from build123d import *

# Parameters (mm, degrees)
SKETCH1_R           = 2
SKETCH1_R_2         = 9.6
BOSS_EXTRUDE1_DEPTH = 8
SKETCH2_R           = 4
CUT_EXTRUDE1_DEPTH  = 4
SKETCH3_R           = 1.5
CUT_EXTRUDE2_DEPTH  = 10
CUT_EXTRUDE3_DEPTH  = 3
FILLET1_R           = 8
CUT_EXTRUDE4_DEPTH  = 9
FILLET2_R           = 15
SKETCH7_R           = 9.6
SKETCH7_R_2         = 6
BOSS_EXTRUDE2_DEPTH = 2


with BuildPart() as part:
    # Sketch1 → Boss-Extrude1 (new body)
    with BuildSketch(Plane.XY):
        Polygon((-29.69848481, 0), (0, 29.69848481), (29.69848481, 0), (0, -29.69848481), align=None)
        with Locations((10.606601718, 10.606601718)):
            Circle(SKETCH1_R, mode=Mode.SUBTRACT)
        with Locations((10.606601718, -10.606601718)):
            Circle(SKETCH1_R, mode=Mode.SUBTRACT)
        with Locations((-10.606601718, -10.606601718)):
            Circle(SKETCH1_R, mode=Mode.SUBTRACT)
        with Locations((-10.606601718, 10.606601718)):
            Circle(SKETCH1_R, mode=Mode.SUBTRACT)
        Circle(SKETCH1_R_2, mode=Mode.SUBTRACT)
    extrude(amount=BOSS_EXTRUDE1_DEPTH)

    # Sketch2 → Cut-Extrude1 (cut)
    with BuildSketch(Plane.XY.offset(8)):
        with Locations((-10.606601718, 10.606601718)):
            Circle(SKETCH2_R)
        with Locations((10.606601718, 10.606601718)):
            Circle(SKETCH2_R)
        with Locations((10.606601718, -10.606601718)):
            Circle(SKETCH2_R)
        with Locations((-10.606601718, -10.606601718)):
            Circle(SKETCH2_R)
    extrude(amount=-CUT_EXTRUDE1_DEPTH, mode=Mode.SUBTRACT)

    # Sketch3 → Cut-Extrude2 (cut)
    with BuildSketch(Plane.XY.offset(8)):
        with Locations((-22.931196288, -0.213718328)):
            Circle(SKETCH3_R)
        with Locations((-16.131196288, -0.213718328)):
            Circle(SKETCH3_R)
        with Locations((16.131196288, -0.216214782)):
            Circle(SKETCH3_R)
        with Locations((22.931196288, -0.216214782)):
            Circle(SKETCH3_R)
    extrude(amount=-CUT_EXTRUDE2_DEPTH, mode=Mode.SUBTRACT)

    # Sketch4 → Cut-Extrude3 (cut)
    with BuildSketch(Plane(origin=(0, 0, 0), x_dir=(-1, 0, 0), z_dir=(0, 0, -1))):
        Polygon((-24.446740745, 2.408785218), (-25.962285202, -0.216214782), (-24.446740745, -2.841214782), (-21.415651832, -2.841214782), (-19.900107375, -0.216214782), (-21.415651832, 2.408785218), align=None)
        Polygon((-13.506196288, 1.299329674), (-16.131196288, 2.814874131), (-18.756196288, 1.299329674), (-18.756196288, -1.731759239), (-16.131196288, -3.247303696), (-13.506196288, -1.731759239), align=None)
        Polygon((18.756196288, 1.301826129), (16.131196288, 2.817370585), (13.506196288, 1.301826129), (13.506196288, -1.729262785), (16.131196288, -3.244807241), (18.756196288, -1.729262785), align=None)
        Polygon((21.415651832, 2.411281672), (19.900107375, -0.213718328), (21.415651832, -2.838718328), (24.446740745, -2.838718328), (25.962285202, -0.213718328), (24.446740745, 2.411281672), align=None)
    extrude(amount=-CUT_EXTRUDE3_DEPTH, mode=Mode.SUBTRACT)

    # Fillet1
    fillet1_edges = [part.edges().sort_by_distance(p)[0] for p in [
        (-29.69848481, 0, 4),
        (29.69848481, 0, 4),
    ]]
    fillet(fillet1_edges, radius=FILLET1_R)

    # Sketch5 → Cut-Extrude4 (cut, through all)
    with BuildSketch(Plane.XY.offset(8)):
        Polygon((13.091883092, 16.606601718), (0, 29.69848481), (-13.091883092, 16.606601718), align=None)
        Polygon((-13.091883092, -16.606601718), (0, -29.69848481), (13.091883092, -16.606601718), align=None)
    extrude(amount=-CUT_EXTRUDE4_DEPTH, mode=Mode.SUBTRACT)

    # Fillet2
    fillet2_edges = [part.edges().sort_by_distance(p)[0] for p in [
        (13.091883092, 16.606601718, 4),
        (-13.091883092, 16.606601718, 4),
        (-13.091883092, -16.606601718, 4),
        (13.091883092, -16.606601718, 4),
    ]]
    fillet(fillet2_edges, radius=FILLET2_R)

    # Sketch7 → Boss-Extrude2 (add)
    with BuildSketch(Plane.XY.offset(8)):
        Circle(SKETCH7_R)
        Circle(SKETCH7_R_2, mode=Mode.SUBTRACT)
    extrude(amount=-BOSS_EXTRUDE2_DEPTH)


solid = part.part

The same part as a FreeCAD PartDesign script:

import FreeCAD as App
import Part
import Sketcher

V = App.Vector
Q = App.Units.Quantity


def edges_at(feature, points):
    """Names of the edges that pass closest to the given points."""
    edges = feature.Shape.Edges
    near = lambda p: min(range(len(edges)), key=lambda i: edges[i].distToShape(Part.Vertex(*p))[0])
    return sorted({f"Edge{near(p) + 1}" for p in points})


def add_polygon(sketch, points):
    """Adds a closed chain of lines whose ends are joined by coincident constraints."""
    first, n = sketch.GeometryCount, len(points)
    for a, b in zip(points, points[1:] + points[:1]):
        sketch.addGeometry(Part.LineSegment(App.Vector(*a, 0), App.Vector(*b, 0)), False)
    for i in range(n):
        sketch.addConstraint(Sketcher.Constraint("Coincident", first + i, 2, first + (i + 1) % n, 1))

doc = App.newDocument("Part")
params = doc.addObject("Spreadsheet::Sheet", "Params")
for row, (alias, value) in enumerate([
    ("sketch1_diameter", "4 mm"),
    ("sketch1_diameter2", "19.2 mm"),
    ("sketch1_length", "42 mm"),
    ("pad1_length", "8 mm"),
    ("sketch2_diameter", "8 mm"),
    ("pocket1_length", "4 mm"),
    ("sketch3_diameter", "3 mm"),
    ("pocket2_length", "10 mm"),
    ("pocket3_length", "3 mm"),
    ("fillet_radius", "8 mm"),
    ("fillet2_radius", "15 mm"),
    ("sketch6_diameter", "12 mm"),
    ("sketch6_diameter2", "19.2 mm"),
    ("pad2_length", "2 mm"),
], start=1):
    params.set(f"A{row}", alias)
    params.set(f"B{row}", "=" + value)
    params.setAlias(f"B{row}", alias)

body = doc.addObject("PartDesign::Body", "Body")

sketch1 = body.newObject("Sketcher::SketchObject", "Sketch")
sketch1.AttachmentSupport = (doc.getObject("XY_Plane"), [""])
sketch1.MapMode = "FlatFace"
add_polygon(sketch1, [(0, 29.7), (-29.7, 0), (0, -29.7), (29.7, 0)])
sketch1.addGeometry(Part.Circle(V(10.6, -10.6, 0), V(0, 0, 1), 2), False)
sketch1.addGeometry(Part.Circle(V(-10.6, -10.6, 0), V(0, 0, 1), 2), False)
sketch1.addGeometry(Part.Circle(V(10.6, 10.6, 0), V(0, 0, 1), 2), False)
sketch1.addGeometry(Part.Circle(V(0, 0, 0), V(0, 0, 1), 9.6), False)
sketch1.addGeometry(Part.Circle(V(-10.6, 10.6, 0), V(0, 0, 1), 2), False)
sketch1.addConstraint([
    Sketcher.Constraint("Coincident", 7, 3, -1, 1),
    Sketcher.Constraint("Equal", 4, 5),
    Sketcher.Constraint("Equal", 5, 6),
    Sketcher.Constraint("Equal", 6, 8),
    Sketcher.Constraint("Symmetric", 5, 3, 6, 3, -1, 1),
    Sketcher.Constraint("Symmetric", 4, 3, 8, 3, -1, 1),
    Sketcher.Constraint("Symmetric", 0, 2, 2, 2, -1, 1),
    Sketcher.Constraint("Symmetric", 1, 2, 3, 2, -1, 1),
    Sketcher.Constraint("Symmetric", 4, 3, 5, 3, -2),
    Sketcher.Constraint("PointOnObject", 0, 2, -1),
    Sketcher.Constraint("PointOnObject", 1, 2, -2),
    Sketcher.Constraint("Perpendicular", 0, 1),
    Sketcher.Constraint("Diameter", 4, 4.0),
    Sketcher.Constraint("Diameter", 7, 19.2),
    Sketcher.Constraint("Distance", 0, 42.0),
    Sketcher.Constraint("DistanceX", -1, 1, 4, 3, 10.606602),
    Sketcher.Constraint("DistanceY", 4, 3, -1, 1, 10.606602),
])
sketch1.setExpression("Constraints[16]", "Params.sketch1_diameter")
sketch1.setExpression("Constraints[17]", "Params.sketch1_diameter2")
sketch1.setExpression("Constraints[18]", "Params.sketch1_length")
pad1 = body.newObject("PartDesign::Pad", "Pad")
pad1.Profile = sketch1
pad1.setExpression("Length", "Params.pad1_length")

sketch2 = body.newObject("Sketcher::SketchObject", "Sketch001")
sketch2.AttachmentSupport = (doc.getObject("XY_Plane"), [""])
sketch2.MapMode = "FlatFace"
sketch2.AttachmentOffset = App.Placement(V(0, 0, 8), App.Rotation())
sketch2.addGeometry([
    Part.Circle(V(-10.6, 10.6, 0), V(0, 0, 1), 4),
    Part.Circle(V(10.6, 10.6, 0), V(0, 0, 1), 4),
    Part.Circle(V(10.6, -10.6, 0), V(0, 0, 1), 4),
    Part.Circle(V(-10.6, -10.6, 0), V(0, 0, 1), 4),
], False)
sketch2.addConstraint([
    Sketcher.Constraint("Equal", 0, 1),
    Sketcher.Constraint("Equal", 1, 2),
    Sketcher.Constraint("Equal", 2, 3),
    Sketcher.Constraint("Symmetric", 0, 3, 2, 3, -1, 1),
    Sketcher.Constraint("Symmetric", 1, 3, 3, 3, -1, 1),
    Sketcher.Constraint("Symmetric", 0, 3, 1, 3, -2),
    Sketcher.Constraint("Diameter", 0, 8.0),
    Sketcher.Constraint("DistanceX", 0, 3, -1, 1, 10.606602),
    Sketcher.Constraint("DistanceY", -1, 1, 0, 3, 10.606602),
])
sketch2.setExpression("Constraints[6]", "Params.sketch2_diameter")
pocket1 = body.newObject("PartDesign::Pocket", "Pocket")
pocket1.Profile = sketch2
pocket1.setExpression("Length", "Params.pocket1_length")

sketch3 = body.newObject("Sketcher::SketchObject", "Sketch002")
sketch3.AttachmentSupport = (doc.getObject("XY_Plane"), [""])
sketch3.MapMode = "FlatFace"
sketch3.AttachmentOffset = App.Placement(V(0, 0, 8), App.Rotation())
sketch3.addGeometry([
    Part.Circle(V(-22.9, -0.2, 0), V(0, 0, 1), 1.5),
    Part.Circle(V(-16.1, -0.2, 0), V(0, 0, 1), 1.5),
    Part.Circle(V(16.1, -0.2, 0), V(0, 0, 1), 1.5),
    Part.Circle(V(22.9, -0.2, 0), V(0, 0, 1), 1.5),
], False)
sketch3.addConstraint([
    Sketcher.Constraint("Equal", 0, 1),
    Sketcher.Constraint("Equal", 1, 2),
    Sketcher.Constraint("Equal", 2, 3),
    Sketcher.Constraint("Horizontal", 0, 3, 1, 3),
    Sketcher.Constraint("Horizontal", 2, 3, 3, 3),
    Sketcher.Constraint("Diameter", 0, 3.0),
    Sketcher.Constraint("DistanceX", 0, 3, 1, 3, 6.8),
    Sketcher.Constraint("DistanceX", 2, 3, 3, 3, 6.8),
    Sketcher.Constraint("DistanceY", 0, 3, -1, 1, 0.213718),
    Sketcher.Constraint("DistanceX", 0, 3, -1, 1, 22.931196),
    Sketcher.Constraint("DistanceX", -1, 1, 2, 3, 16.131196),
    Sketcher.Constraint("DistanceY", 2, 3, -1, 1, 0.216215),
])
sketch3.setExpression("Constraints[5]", "Params.sketch3_diameter")
pocket2 = body.newObject("PartDesign::Pocket", "Pocket001")
pocket2.Profile = sketch3
pocket2.setExpression("Length", "Params.pocket2_length")

sketch4 = body.newObject("Sketcher::SketchObject", "Sketch003")
sketch4.AttachmentSupport = (doc.getObject("XY_Plane"), [""])
sketch4.MapMode = "FlatFace"
add_polygon(sketch4, [(24.4, 2.4), (26, -0.2), (24.4, -2.8), (21.4, -2.8), (19.9, -0.2), (21.4, 2.4)])
add_polygon(sketch4, [(13.5, 1.3), (16.1, 2.8), (18.8, 1.3), (18.8, -1.7), (16.1, -3.2), (13.5, -1.7)])
add_polygon(sketch4, [(-18.8, 1.3), (-16.1, 2.8), (-13.5, 1.3), (-13.5, -1.7), (-16.1, -3.2), (-18.8, -1.7)])
add_polygon(sketch4, [(-21.4, 2.4), (-19.9, -0.2), (-21.4, -2.8), (-24.4, -2.8), (-26, -0.2), (-24.4, 2.4)])
sketch4.addConstraint([
    Sketcher.Constraint("Horizontal", 2),
    Sketcher.Constraint("Horizontal", 5),
    Sketcher.Constraint("Vertical", 8),
    Sketcher.Constraint("Vertical", 11),
    Sketcher.Constraint("Vertical", 14),
    Sketcher.Constraint("Vertical", 17),
    Sketcher.Constraint("Horizontal", 20),
    Sketcher.Constraint("Horizontal", 23),
    Sketcher.Constraint("Parallel", 0, 3),
    Sketcher.Constraint("Parallel", 1, 4),
    Sketcher.Constraint("Perpendicular", 3, 6),
    Sketcher.Constraint("Perpendicular", 4, 7),
    Sketcher.Constraint("Parallel", 6, 9),
    Sketcher.Constraint("Parallel", 7, 10),
    Sketcher.Constraint("Parallel", 9, 12),
    Sketcher.Constraint("Parallel", 10, 13),
    Sketcher.Constraint("Parallel", 12, 15),
    Sketcher.Constraint("Parallel", 13, 16),
    Sketcher.Constraint("Perpendicular", 15, 18),
    Sketcher.Constraint("Perpendicular", 16, 19),
    Sketcher.Constraint("Parallel", 18, 21),
    Sketcher.Constraint("Parallel", 19, 22),
    Sketcher.Constraint("Horizontal", 0, 2, 3, 2),
    Sketcher.Constraint("Horizontal", 8, 2, 10, 2),
    Sketcher.Constraint("Horizontal", 7, 2, 11, 2),
    Sketcher.Constraint("Horizontal", 14, 2, 16, 2),
    Sketcher.Constraint("Horizontal", 13, 2, 17, 2),
    Sketcher.Constraint("Horizontal", 18, 2, 21, 2),
    Sketcher.Constraint("Vertical", 2, 2, 4, 2),
    Sketcher.Constraint("Vertical", 1, 2, 5, 2),
    Sketcher.Constraint("Vertical", 20, 2, 22, 2),
    Sketcher.Constraint("Equal", 5, 20),
    Sketcher.Constraint("Equal", 23, 8),
    Sketcher.Constraint("Equal", 11, 14),
    Sketcher.Constraint("Equal", 4, 6),
    Sketcher.Constraint("Equal", 10, 12),
    Sketcher.Constraint("Equal", 16, 18),
    Sketcher.Constraint("Angle", 0, Q("-60 deg")),
    Sketcher.Constraint("DistanceY", 2, 2, 4, 2, 5.25),
    Sketcher.Constraint("DistanceX", 2, 2, 2, 1, 3.031089),
    Sketcher.Constraint("DistanceX", -1, 1, 1, 2, 24.446741),
    Sketcher.Constraint("DistanceY", -1, 1, 7, 2, 1.29933),
    Sketcher.Constraint("DistanceY", -1, 1, 12, 2, 2.817371),
    Sketcher.Constraint("DistanceY", 18, 2, -1, 1, 0.213718),
    Sketcher.Constraint("DistanceX", 19, 2, -1, 1, 21.415652),
    Sketcher.Constraint("DistanceX", 6, 2, 3, 2, 3.768911),
    Sketcher.Constraint("DistanceY", 3, 2, 6, 2, 3.031089),
    Sketcher.Constraint("DistanceX", 18, 2, 16, 2, 1.143911),
])
pocket3 = body.newObject("PartDesign::Pocket", "Pocket002")
pocket3.Profile = sketch4
pocket3.setExpression("Length", "Params.pocket3_length")
pocket3.Reversed = True
doc.recompute()

fillet = body.newObject("PartDesign::Fillet", "Fillet")
fillet.Base = (pocket3, edges_at(pocket3, [(-29.698, 0, 4), (29.698, 0, 4)]))
fillet.setExpression("Radius", "Params.fillet_radius")

sketch5 = body.newObject("Sketcher::SketchObject", "Sketch004")
sketch5.AttachmentSupport = (doc.getObject("XY_Plane"), [""])
sketch5.MapMode = "FlatFace"
sketch5.AttachmentOffset = App.Placement(V(0, 0, 8), App.Rotation())
add_polygon(sketch5, [(13, 17), (0, 30), (-13, 17)])
add_polygon(sketch5, [(-13, -17), (0, -30), (13, -17)])
sketch5.addConstraint([
    Sketcher.Constraint("Horizontal", 2),
    Sketcher.Constraint("Horizontal", 5),
    Sketcher.Constraint("Symmetric", 0, 2, 3, 2, -1, 1),
    Sketcher.Constraint("Symmetric", 1, 2, 4, 2, -1, 1),
    Sketcher.Constraint("PointOnObject", 0, 2, -2),
    Sketcher.Constraint("Perpendicular", 0, 1),
    Sketcher.Constraint("Perpendicular", 1, 3),
    Sketcher.Constraint("Vertical", 2, 2, 4, 2),
    Sketcher.Constraint("DistanceY", -1, 1, 1, 2, 16.606602),
    Sketcher.Constraint("Distance", 0, 18.514719),
])
pocket4 = body.newObject("PartDesign::Pocket", "Pocket003")
pocket4.Profile = sketch5
pocket4.Type = "ThroughAll"
doc.recompute()

fillet2 = body.newObject("PartDesign::Fillet", "Fillet001")
fillet2.Base = (pocket4, edges_at(pocket4, [
    (13.092, 16.607, 4),
    (-13.092, 16.607, 4),
    (-13.092, -16.607, 4),
    (13.092, -16.607, 4),
]))
fillet2.setExpression("Radius", "Params.fillet2_radius")

sketch6 = body.newObject("Sketcher::SketchObject", "Sketch005")
sketch6.AttachmentSupport = (doc.getObject("XY_Plane"), [""])
sketch6.MapMode = "FlatFace"
sketch6.AttachmentOffset = App.Placement(V(0, 0, 8), App.Rotation())
sketch6.addGeometry([
    Part.Circle(V(0, 0, 0), V(0, 0, 1), 10),
    Part.Circle(V(0, 0, 0), V(0, 0, 1), 6),
], False)
sketch6.addConstraint([
    Sketcher.Constraint("Coincident", 0, 3, -1, 1),
    Sketcher.Constraint("Coincident", 1, 3, -1, 1),
    Sketcher.Constraint("Diameter", 1, 12.0),
    Sketcher.Constraint("Diameter", 0, 19.2),
])
sketch6.setExpression("Constraints[2]", "Params.sketch6_diameter")
sketch6.setExpression("Constraints[3]", "Params.sketch6_diameter2")
pad2 = body.newObject("PartDesign::Pad", "Pad001")
pad2.Profile = sketch6
pad2.setExpression("Length", "Params.pad2_length")
pad2.Reversed = True

doc.recompute()
